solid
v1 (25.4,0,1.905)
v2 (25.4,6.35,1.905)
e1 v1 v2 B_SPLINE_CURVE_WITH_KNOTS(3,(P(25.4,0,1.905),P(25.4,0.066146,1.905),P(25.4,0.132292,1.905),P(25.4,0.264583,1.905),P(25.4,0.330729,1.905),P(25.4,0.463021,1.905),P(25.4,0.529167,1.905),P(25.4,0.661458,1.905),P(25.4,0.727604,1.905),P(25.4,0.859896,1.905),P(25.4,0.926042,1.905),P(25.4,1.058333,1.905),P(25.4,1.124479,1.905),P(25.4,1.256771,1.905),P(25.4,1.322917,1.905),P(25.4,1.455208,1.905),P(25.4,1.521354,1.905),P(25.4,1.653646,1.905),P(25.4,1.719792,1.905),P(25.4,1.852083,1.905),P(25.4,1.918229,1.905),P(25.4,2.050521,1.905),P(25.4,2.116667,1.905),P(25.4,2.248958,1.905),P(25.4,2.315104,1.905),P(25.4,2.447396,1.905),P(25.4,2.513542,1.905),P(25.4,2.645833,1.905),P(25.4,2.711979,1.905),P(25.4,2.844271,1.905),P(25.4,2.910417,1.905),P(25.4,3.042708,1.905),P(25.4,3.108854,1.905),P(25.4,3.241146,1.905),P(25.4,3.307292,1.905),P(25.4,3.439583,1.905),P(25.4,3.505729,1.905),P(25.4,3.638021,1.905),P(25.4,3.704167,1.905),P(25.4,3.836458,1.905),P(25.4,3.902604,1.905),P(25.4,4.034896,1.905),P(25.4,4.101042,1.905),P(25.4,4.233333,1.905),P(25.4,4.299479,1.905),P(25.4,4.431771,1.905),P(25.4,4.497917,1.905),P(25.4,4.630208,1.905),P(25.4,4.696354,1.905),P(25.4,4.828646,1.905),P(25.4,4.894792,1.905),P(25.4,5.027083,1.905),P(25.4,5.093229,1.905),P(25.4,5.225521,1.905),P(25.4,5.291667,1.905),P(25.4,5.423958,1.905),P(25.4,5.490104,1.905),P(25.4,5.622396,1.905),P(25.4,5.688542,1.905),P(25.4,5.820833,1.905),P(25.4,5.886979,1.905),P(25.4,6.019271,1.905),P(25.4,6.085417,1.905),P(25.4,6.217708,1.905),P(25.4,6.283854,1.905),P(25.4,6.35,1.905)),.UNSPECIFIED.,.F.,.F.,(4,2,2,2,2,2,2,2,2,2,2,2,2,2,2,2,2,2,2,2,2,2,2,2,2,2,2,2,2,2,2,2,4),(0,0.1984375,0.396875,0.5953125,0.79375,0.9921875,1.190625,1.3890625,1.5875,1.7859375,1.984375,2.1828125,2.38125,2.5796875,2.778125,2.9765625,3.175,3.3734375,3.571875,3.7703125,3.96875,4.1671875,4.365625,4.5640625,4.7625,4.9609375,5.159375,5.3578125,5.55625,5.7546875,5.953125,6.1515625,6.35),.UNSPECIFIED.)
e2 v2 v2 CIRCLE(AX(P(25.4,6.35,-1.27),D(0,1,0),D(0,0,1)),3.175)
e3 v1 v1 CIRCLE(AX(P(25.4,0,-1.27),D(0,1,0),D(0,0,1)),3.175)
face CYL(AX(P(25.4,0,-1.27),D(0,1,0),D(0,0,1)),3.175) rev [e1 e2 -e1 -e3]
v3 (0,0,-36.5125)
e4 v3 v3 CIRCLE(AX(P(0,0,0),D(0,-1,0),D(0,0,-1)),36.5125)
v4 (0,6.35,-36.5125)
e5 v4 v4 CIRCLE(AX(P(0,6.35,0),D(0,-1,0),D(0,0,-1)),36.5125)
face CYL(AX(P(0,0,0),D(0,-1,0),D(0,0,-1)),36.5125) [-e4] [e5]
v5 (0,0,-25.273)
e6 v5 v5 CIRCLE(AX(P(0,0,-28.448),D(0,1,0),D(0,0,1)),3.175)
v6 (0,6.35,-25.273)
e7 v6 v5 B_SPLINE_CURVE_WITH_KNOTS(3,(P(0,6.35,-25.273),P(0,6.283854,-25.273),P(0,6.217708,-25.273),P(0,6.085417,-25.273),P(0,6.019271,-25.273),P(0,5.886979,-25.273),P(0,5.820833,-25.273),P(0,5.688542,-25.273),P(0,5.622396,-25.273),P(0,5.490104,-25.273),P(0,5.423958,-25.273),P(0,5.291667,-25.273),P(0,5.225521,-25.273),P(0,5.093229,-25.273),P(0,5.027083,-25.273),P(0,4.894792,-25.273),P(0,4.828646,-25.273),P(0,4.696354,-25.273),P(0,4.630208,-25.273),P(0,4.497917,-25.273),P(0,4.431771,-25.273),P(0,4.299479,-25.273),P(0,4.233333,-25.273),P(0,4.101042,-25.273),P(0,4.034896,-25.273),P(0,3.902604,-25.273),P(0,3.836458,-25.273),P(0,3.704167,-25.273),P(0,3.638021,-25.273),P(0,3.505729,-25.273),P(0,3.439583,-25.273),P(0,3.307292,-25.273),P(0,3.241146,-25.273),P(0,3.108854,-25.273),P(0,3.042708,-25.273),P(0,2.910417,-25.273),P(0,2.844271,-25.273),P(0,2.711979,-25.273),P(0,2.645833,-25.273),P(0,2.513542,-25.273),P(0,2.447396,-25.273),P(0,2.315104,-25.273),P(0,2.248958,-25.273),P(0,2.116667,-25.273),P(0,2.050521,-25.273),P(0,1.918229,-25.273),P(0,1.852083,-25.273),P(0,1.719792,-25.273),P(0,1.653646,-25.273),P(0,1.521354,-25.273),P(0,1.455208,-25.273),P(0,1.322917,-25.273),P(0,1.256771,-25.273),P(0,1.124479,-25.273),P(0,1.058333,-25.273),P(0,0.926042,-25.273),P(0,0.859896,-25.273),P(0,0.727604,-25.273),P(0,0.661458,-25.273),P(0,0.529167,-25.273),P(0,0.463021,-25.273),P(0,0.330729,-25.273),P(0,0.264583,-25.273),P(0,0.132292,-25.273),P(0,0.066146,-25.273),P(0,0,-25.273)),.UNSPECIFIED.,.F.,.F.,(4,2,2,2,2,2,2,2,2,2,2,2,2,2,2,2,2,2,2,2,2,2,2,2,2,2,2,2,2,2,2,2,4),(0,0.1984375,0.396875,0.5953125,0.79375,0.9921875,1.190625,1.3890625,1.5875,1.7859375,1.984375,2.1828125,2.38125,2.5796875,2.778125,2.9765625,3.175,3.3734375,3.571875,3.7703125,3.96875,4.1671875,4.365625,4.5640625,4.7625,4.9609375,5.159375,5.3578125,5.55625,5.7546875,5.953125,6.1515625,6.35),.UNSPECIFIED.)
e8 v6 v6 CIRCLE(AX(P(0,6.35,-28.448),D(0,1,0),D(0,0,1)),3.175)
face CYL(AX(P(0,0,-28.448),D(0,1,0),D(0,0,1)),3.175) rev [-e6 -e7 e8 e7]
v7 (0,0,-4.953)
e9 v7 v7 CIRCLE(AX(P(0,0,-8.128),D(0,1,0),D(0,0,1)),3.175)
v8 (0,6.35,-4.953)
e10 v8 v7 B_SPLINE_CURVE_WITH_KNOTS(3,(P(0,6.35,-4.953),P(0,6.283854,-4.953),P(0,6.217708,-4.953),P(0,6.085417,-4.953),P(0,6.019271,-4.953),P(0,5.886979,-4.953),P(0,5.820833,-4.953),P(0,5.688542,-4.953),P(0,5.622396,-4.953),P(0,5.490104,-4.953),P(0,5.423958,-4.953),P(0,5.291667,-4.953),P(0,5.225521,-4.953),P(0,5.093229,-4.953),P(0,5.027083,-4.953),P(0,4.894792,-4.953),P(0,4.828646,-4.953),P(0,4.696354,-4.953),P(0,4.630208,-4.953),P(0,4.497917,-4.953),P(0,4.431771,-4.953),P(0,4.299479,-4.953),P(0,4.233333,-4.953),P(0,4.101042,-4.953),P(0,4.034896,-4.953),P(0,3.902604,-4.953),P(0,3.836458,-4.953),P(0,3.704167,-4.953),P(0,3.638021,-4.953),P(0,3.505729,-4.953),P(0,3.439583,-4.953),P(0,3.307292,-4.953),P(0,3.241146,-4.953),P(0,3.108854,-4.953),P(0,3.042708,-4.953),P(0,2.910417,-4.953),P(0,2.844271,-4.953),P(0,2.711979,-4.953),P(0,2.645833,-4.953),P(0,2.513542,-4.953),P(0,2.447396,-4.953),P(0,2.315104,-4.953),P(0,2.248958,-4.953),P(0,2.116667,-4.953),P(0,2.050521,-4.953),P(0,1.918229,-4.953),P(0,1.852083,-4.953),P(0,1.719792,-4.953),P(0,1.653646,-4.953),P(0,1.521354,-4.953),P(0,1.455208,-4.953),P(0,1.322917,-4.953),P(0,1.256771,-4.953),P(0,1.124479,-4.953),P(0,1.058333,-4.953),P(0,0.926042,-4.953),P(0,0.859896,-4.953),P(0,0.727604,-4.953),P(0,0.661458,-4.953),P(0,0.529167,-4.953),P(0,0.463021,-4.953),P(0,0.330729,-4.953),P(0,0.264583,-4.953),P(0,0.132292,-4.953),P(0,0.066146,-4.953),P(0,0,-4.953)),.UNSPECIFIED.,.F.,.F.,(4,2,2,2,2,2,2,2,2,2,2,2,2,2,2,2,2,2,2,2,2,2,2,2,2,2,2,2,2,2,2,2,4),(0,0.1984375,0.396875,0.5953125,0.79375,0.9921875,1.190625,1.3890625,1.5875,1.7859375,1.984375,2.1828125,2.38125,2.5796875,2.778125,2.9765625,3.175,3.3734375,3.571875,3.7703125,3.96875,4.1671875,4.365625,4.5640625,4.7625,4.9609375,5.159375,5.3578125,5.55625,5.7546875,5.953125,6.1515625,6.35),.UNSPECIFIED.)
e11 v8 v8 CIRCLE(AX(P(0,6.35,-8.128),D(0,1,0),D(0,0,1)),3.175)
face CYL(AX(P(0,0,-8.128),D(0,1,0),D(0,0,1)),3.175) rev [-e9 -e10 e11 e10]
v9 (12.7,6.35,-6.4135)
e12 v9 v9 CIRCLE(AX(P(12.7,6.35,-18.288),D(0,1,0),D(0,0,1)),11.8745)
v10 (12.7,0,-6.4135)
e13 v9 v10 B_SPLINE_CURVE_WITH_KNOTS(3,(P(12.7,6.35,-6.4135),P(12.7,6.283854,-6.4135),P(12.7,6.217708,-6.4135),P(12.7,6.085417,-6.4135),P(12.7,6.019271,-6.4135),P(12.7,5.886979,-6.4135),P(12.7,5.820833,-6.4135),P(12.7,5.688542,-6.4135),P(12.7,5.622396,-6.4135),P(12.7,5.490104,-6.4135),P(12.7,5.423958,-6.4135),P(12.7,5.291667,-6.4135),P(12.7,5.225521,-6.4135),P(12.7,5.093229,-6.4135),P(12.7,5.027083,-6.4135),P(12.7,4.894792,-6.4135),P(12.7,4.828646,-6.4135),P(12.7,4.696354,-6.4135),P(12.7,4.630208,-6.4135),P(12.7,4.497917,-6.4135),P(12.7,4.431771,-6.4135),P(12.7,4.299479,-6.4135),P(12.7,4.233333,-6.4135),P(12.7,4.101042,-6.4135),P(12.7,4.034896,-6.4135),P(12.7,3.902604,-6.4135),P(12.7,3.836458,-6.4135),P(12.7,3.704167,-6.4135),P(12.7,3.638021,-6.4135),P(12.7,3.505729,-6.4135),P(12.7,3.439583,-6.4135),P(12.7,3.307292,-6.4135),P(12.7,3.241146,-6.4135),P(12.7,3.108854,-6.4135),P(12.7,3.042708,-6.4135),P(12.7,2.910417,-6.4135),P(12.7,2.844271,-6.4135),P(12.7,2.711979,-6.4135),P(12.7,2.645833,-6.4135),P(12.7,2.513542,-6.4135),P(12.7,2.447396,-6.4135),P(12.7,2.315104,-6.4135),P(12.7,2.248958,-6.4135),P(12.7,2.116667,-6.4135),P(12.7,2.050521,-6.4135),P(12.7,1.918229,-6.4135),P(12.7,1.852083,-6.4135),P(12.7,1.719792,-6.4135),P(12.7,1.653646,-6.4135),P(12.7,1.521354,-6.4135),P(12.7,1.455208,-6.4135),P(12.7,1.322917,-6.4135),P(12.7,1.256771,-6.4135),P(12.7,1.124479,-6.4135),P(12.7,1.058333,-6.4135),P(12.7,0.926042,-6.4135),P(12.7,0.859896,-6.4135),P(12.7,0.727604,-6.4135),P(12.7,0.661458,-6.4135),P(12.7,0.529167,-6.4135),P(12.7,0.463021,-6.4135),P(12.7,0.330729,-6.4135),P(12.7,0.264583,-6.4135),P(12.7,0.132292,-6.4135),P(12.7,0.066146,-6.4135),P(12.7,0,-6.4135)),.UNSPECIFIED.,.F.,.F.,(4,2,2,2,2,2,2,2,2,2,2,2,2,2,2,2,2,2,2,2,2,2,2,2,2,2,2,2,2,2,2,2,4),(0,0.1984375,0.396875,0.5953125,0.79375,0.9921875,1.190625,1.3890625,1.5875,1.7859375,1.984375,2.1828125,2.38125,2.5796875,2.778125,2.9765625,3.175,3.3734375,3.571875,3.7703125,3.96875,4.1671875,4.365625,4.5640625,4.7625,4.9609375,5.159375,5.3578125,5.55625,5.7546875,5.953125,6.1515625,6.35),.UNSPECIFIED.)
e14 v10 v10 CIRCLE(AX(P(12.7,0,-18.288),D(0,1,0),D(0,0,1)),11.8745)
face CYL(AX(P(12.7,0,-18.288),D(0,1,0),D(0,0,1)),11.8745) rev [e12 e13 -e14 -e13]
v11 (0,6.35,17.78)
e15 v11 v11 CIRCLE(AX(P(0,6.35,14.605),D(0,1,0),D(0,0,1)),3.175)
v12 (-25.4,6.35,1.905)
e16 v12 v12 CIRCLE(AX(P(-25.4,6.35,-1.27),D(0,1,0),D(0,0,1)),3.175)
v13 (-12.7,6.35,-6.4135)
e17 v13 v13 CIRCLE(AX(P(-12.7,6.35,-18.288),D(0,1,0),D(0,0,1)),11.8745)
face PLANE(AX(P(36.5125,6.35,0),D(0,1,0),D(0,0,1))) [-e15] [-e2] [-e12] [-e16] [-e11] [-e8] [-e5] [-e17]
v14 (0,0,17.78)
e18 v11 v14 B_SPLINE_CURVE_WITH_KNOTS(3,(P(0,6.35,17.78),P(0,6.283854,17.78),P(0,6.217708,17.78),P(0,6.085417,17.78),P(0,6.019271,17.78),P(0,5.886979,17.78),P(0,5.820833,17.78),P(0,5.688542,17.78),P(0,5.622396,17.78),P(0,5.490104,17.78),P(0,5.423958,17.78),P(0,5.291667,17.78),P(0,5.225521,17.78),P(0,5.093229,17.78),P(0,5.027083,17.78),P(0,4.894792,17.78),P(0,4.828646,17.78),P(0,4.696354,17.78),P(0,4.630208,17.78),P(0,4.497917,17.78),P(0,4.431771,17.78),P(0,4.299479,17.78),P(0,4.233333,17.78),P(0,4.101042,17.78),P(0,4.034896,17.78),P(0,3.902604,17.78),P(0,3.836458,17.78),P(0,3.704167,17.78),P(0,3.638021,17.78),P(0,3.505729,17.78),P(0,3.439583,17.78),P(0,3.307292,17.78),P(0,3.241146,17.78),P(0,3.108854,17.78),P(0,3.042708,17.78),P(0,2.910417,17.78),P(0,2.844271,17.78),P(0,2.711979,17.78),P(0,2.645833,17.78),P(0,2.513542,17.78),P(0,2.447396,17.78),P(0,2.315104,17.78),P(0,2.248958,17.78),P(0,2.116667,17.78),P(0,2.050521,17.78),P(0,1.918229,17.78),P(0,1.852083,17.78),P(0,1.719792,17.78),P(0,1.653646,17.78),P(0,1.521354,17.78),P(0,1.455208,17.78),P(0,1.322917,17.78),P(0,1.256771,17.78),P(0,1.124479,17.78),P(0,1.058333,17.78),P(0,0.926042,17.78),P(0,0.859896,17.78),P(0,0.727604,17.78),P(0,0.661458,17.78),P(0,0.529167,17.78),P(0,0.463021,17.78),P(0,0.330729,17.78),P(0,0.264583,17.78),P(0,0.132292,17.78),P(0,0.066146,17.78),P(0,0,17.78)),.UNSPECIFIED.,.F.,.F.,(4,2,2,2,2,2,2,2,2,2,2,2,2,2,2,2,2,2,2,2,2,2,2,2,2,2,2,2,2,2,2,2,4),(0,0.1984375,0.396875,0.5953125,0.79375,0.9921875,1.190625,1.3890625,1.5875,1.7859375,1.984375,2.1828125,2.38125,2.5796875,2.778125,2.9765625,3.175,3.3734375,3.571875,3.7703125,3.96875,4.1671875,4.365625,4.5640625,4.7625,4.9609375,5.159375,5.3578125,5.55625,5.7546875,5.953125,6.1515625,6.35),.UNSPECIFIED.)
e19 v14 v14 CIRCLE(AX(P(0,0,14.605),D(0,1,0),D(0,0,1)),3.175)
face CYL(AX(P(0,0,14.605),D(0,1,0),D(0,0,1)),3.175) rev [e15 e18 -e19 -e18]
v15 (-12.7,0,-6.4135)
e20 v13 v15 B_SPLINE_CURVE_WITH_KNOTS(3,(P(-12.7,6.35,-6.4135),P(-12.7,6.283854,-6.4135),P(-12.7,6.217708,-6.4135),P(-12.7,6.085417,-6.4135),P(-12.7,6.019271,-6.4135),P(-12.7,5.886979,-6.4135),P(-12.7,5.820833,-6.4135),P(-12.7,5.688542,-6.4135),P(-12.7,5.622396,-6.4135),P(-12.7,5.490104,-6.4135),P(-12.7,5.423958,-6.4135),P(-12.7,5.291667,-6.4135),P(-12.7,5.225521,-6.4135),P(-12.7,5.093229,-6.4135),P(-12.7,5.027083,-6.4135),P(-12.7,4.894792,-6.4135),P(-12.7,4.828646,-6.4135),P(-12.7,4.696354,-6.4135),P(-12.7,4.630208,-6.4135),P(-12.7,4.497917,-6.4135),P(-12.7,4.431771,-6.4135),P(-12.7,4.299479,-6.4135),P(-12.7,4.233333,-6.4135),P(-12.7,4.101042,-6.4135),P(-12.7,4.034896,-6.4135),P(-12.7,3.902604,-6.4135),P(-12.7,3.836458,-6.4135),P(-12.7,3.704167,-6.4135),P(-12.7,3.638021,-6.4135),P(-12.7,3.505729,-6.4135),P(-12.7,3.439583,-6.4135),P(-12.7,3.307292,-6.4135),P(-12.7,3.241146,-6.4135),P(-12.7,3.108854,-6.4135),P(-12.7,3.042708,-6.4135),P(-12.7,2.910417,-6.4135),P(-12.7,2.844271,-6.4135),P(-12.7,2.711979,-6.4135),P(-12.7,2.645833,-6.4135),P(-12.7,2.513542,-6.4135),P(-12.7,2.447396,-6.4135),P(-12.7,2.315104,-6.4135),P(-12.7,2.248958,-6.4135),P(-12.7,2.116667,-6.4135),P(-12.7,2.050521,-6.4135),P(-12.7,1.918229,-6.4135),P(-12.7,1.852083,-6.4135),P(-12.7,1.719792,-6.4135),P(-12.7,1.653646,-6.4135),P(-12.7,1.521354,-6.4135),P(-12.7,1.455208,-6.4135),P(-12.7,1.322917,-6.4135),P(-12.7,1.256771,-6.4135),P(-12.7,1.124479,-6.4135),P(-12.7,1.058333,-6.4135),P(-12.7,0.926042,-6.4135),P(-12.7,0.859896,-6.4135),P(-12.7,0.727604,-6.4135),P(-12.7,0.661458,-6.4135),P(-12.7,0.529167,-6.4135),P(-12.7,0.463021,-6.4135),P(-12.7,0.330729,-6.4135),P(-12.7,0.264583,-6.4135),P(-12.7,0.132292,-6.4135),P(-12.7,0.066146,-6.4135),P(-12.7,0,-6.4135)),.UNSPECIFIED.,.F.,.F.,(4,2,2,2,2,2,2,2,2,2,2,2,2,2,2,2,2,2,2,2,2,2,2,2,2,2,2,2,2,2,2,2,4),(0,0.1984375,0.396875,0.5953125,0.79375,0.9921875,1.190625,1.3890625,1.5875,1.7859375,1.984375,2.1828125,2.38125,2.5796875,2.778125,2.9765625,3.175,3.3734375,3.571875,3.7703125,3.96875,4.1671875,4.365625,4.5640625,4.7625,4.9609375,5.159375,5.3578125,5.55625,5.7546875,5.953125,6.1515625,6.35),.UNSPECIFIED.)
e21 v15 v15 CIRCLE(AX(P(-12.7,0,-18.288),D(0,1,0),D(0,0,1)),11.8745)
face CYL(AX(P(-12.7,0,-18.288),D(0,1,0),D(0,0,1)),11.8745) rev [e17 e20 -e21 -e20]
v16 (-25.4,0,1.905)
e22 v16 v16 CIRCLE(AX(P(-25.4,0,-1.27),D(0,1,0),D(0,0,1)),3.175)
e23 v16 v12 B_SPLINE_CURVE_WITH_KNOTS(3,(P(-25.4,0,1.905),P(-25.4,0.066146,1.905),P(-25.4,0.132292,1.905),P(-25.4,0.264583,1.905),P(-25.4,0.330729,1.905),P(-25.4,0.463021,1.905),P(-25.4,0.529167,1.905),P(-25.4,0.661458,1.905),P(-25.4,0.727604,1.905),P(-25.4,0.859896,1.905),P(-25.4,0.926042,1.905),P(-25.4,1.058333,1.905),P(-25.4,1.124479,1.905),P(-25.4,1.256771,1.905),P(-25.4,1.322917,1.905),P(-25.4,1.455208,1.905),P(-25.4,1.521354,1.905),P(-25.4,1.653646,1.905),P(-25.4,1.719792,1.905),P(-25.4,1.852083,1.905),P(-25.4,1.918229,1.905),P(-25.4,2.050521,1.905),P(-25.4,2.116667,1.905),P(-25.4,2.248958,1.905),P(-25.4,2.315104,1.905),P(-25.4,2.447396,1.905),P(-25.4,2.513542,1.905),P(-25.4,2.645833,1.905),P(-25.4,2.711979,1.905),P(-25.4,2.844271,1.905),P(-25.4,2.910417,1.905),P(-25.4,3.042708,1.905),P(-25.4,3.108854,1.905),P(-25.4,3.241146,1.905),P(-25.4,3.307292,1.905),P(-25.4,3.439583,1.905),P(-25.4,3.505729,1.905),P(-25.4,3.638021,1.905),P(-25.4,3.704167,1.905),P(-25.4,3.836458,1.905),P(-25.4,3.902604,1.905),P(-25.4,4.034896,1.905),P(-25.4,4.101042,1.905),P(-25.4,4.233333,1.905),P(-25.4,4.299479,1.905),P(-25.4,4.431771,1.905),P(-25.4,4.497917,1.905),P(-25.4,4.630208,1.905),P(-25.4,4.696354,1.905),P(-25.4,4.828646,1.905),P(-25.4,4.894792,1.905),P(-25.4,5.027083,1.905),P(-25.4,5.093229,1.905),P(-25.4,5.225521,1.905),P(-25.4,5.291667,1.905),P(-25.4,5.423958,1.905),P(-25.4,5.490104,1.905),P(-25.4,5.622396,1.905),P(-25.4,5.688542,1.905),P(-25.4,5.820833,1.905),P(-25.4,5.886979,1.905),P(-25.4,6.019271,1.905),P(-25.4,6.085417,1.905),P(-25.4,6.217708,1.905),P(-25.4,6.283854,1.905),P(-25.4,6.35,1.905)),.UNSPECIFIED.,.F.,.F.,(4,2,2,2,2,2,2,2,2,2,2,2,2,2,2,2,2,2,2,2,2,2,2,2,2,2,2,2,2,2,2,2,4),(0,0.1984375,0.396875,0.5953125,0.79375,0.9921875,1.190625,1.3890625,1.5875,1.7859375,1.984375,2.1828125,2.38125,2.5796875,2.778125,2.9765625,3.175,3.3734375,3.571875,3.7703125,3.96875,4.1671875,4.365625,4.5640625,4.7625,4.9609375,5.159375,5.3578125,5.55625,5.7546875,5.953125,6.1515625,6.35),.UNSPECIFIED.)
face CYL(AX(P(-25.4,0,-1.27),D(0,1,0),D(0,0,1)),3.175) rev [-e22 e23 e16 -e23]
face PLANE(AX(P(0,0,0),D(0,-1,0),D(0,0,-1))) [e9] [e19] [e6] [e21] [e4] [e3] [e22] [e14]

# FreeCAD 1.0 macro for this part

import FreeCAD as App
import Part
import Sketcher
from FreeCAD import Vector
Q = App.Units.Quantity


def add_polygon(sketch, points):
    """Adds a closed chain of lines whose ends are joined by coincident constraints."""
    first, n = sketch.GeometryCount, len(points)
    for a, b in zip(points, points[1:] + points[:1]):
        sketch.addGeometry(Part.LineSegment(App.Vector(*a, 0), App.Vector(*b, 0)), False)
    for i in range(n):
        sketch.addConstraint(Sketcher.Constraint("Coincident", first + i, 2, first + (i + 1) % n, 1))

doc = App.newDocument("Part")
body = doc.addObject("PartDesign::Body", "Body")

# Sketch on XY plane
sketch1 = body.newObject("Sketcher::SketchObject", "Sketch")
sketch1.AttachmentSupport = (doc.getObject("XY_Plane"), [""])
sketch1.MapMode = "FlatFace"
add_polygon(sketch1, [(0, 6), (0, 0), (37, 0), (37, 6)])  # lines 0-3
sketch1.addConstraint(Sketcher.Constraint("Vertical", 0))
sketch1.addConstraint(Sketcher.Constraint("Horizontal", 1))
sketch1.addConstraint(Sketcher.Constraint("Vertical", 2))
sketch1.addConstraint(Sketcher.Constraint("Horizontal", 3))
sketch1.addConstraint(Sketcher.Constraint("Coincident", 0, 2, -1, 1))
sketch1.addConstraint(Sketcher.Constraint("DistanceY", 0, 2, 0, 1, Q("0.25 in")))
sketch1.addConstraint(Sketcher.Constraint("DistanceX", 1, 1, 1, 2, Q("1.4375 in")))
revolution = body.newObject("PartDesign::Revolution", "Revolution")
revolution.Profile = sketch1
revolution.ReferenceAxis = (sketch1, ["V_Axis"])
revolution.Angle = 360

# Sketch on XZ plane
sketch2 = body.newObject("Sketcher::SketchObject", "Sketch001")
sketch2.AttachmentSupport = (doc.getObject("XZ_Plane"), [""])
sketch2.MapMode = "FlatFace"
sketch2.AttachmentOffset = App.Placement(Vector(0, 0, -0.25 * 25.4), App.Rotation())
sketch2.addGeometry(Part.Circle(Vector(-12.7, -18.3, 0), Vector(0, 0, 1), 11.9), False)
sketch2.addGeometry(Part.Circle(Vector(12.7, -18.3, 0), Vector(0, 0, 1), 11.9), False)
sketch2.addGeometry(Part.Circle(Vector(0, -28.4, 0), Vector(0, 0, 1), 3.2), False)
sketch2.addGeometry(Part.Circle(Vector(0, -8.1, 0), Vector(0, 0, 1), 3.2), False)
sketch2.addGeometry(Part.Circle(Vector(0, 14.6, 0), Vector(0, 0, 1), 3.2), False)
sketch2.addConstraint(Sketcher.Constraint("Equal", 0, 1))
sketch2.addConstraint(Sketcher.Constraint("Equal", 2, 3))
sketch2.addConstraint(Sketcher.Constraint("Equal", 3, 4))
sketch2.addConstraint(Sketcher.Constraint("Symmetric", 0, 3, 1, 3, -2))
sketch2.addConstraint(Sketcher.Constraint("PointOnObject", 2, 3, -2))
sketch2.addConstraint(Sketcher.Constraint("PointOnObject", 3, 3, -2))
sketch2.addConstraint(Sketcher.Constraint("PointOnObject", 4, 3, -2))
sketch2.addConstraint(Sketcher.Constraint("Diameter", 2, Q("0.25 in")))
sketch2.addConstraint(Sketcher.Constraint("Diameter", 0, Q("0.935 in")))
sketch2.addConstraint(Sketcher.Constraint("DistanceX", 0, 3, 1, 3, Q("1 in")))
sketch2.addConstraint(Sketcher.Constraint("DistanceY", 2, 3, 0, 3, Q("0.4 in")))
sketch2.addConstraint(Sketcher.Constraint("DistanceY", 0, 3, 3, 3, Q("0.4 in")))
sketch2.addConstraint(Sketcher.Constraint("DistanceY", 0, 3, -1, 1, Q("0.72 in")))
sketch2.addConstraint(Sketcher.Constraint("DistanceY", -1, 1, 4, 3, Q("0.575 in")))
pocket1 = body.newObject("PartDesign::Pocket", "Pocket")
pocket1.Profile = sketch2
pocket1.Type = "ThroughAll"
pocket1.Midplane = True

# Sketch on XZ plane
sketch3 = body.newObject("Sketcher::SketchObject", "Sketch002")
sketch3.AttachmentSupport = (doc.getObject("XZ_Plane"), [""])
sketch3.MapMode = "FlatFace"
sketch3.AttachmentOffset = App.Placement(Vector(0, 0, -0.25 * 25.4), App.Rotation())
sketch3.addGeometry(Part.Circle(Vector(-25.4, -1.3, 0), Vector(0, 0, 1), 3.2), False)
sketch3.addGeometry(Part.Circle(Vector(25.4, -1.3, 0), Vector(0, 0, 1), 3.2), False)
sketch3.addConstraint(Sketcher.Constraint("Equal", 0, 1))
sketch3.addConstraint(Sketcher.Constraint("Symmetric", 0, 3, 1, 3, -2))
sketch3.addConstraint(Sketcher.Constraint("Diameter", 0, Q("0.25 in")))
sketch3.addConstraint(Sketcher.Constraint("DistanceX", 0, 3, -1, 1, Q("1 in")))
sketch3.addConstraint(Sketcher.Constraint("DistanceY", 0, 3, -1, 1, Q("0.05 in")))
pocket2 = body.newObject("PartDesign::Pocket", "Pocket001")
pocket2.Profile = sketch3
pocket2.Type = "ThroughAll"
pocket2.Midplane = True

doc.recompute()
